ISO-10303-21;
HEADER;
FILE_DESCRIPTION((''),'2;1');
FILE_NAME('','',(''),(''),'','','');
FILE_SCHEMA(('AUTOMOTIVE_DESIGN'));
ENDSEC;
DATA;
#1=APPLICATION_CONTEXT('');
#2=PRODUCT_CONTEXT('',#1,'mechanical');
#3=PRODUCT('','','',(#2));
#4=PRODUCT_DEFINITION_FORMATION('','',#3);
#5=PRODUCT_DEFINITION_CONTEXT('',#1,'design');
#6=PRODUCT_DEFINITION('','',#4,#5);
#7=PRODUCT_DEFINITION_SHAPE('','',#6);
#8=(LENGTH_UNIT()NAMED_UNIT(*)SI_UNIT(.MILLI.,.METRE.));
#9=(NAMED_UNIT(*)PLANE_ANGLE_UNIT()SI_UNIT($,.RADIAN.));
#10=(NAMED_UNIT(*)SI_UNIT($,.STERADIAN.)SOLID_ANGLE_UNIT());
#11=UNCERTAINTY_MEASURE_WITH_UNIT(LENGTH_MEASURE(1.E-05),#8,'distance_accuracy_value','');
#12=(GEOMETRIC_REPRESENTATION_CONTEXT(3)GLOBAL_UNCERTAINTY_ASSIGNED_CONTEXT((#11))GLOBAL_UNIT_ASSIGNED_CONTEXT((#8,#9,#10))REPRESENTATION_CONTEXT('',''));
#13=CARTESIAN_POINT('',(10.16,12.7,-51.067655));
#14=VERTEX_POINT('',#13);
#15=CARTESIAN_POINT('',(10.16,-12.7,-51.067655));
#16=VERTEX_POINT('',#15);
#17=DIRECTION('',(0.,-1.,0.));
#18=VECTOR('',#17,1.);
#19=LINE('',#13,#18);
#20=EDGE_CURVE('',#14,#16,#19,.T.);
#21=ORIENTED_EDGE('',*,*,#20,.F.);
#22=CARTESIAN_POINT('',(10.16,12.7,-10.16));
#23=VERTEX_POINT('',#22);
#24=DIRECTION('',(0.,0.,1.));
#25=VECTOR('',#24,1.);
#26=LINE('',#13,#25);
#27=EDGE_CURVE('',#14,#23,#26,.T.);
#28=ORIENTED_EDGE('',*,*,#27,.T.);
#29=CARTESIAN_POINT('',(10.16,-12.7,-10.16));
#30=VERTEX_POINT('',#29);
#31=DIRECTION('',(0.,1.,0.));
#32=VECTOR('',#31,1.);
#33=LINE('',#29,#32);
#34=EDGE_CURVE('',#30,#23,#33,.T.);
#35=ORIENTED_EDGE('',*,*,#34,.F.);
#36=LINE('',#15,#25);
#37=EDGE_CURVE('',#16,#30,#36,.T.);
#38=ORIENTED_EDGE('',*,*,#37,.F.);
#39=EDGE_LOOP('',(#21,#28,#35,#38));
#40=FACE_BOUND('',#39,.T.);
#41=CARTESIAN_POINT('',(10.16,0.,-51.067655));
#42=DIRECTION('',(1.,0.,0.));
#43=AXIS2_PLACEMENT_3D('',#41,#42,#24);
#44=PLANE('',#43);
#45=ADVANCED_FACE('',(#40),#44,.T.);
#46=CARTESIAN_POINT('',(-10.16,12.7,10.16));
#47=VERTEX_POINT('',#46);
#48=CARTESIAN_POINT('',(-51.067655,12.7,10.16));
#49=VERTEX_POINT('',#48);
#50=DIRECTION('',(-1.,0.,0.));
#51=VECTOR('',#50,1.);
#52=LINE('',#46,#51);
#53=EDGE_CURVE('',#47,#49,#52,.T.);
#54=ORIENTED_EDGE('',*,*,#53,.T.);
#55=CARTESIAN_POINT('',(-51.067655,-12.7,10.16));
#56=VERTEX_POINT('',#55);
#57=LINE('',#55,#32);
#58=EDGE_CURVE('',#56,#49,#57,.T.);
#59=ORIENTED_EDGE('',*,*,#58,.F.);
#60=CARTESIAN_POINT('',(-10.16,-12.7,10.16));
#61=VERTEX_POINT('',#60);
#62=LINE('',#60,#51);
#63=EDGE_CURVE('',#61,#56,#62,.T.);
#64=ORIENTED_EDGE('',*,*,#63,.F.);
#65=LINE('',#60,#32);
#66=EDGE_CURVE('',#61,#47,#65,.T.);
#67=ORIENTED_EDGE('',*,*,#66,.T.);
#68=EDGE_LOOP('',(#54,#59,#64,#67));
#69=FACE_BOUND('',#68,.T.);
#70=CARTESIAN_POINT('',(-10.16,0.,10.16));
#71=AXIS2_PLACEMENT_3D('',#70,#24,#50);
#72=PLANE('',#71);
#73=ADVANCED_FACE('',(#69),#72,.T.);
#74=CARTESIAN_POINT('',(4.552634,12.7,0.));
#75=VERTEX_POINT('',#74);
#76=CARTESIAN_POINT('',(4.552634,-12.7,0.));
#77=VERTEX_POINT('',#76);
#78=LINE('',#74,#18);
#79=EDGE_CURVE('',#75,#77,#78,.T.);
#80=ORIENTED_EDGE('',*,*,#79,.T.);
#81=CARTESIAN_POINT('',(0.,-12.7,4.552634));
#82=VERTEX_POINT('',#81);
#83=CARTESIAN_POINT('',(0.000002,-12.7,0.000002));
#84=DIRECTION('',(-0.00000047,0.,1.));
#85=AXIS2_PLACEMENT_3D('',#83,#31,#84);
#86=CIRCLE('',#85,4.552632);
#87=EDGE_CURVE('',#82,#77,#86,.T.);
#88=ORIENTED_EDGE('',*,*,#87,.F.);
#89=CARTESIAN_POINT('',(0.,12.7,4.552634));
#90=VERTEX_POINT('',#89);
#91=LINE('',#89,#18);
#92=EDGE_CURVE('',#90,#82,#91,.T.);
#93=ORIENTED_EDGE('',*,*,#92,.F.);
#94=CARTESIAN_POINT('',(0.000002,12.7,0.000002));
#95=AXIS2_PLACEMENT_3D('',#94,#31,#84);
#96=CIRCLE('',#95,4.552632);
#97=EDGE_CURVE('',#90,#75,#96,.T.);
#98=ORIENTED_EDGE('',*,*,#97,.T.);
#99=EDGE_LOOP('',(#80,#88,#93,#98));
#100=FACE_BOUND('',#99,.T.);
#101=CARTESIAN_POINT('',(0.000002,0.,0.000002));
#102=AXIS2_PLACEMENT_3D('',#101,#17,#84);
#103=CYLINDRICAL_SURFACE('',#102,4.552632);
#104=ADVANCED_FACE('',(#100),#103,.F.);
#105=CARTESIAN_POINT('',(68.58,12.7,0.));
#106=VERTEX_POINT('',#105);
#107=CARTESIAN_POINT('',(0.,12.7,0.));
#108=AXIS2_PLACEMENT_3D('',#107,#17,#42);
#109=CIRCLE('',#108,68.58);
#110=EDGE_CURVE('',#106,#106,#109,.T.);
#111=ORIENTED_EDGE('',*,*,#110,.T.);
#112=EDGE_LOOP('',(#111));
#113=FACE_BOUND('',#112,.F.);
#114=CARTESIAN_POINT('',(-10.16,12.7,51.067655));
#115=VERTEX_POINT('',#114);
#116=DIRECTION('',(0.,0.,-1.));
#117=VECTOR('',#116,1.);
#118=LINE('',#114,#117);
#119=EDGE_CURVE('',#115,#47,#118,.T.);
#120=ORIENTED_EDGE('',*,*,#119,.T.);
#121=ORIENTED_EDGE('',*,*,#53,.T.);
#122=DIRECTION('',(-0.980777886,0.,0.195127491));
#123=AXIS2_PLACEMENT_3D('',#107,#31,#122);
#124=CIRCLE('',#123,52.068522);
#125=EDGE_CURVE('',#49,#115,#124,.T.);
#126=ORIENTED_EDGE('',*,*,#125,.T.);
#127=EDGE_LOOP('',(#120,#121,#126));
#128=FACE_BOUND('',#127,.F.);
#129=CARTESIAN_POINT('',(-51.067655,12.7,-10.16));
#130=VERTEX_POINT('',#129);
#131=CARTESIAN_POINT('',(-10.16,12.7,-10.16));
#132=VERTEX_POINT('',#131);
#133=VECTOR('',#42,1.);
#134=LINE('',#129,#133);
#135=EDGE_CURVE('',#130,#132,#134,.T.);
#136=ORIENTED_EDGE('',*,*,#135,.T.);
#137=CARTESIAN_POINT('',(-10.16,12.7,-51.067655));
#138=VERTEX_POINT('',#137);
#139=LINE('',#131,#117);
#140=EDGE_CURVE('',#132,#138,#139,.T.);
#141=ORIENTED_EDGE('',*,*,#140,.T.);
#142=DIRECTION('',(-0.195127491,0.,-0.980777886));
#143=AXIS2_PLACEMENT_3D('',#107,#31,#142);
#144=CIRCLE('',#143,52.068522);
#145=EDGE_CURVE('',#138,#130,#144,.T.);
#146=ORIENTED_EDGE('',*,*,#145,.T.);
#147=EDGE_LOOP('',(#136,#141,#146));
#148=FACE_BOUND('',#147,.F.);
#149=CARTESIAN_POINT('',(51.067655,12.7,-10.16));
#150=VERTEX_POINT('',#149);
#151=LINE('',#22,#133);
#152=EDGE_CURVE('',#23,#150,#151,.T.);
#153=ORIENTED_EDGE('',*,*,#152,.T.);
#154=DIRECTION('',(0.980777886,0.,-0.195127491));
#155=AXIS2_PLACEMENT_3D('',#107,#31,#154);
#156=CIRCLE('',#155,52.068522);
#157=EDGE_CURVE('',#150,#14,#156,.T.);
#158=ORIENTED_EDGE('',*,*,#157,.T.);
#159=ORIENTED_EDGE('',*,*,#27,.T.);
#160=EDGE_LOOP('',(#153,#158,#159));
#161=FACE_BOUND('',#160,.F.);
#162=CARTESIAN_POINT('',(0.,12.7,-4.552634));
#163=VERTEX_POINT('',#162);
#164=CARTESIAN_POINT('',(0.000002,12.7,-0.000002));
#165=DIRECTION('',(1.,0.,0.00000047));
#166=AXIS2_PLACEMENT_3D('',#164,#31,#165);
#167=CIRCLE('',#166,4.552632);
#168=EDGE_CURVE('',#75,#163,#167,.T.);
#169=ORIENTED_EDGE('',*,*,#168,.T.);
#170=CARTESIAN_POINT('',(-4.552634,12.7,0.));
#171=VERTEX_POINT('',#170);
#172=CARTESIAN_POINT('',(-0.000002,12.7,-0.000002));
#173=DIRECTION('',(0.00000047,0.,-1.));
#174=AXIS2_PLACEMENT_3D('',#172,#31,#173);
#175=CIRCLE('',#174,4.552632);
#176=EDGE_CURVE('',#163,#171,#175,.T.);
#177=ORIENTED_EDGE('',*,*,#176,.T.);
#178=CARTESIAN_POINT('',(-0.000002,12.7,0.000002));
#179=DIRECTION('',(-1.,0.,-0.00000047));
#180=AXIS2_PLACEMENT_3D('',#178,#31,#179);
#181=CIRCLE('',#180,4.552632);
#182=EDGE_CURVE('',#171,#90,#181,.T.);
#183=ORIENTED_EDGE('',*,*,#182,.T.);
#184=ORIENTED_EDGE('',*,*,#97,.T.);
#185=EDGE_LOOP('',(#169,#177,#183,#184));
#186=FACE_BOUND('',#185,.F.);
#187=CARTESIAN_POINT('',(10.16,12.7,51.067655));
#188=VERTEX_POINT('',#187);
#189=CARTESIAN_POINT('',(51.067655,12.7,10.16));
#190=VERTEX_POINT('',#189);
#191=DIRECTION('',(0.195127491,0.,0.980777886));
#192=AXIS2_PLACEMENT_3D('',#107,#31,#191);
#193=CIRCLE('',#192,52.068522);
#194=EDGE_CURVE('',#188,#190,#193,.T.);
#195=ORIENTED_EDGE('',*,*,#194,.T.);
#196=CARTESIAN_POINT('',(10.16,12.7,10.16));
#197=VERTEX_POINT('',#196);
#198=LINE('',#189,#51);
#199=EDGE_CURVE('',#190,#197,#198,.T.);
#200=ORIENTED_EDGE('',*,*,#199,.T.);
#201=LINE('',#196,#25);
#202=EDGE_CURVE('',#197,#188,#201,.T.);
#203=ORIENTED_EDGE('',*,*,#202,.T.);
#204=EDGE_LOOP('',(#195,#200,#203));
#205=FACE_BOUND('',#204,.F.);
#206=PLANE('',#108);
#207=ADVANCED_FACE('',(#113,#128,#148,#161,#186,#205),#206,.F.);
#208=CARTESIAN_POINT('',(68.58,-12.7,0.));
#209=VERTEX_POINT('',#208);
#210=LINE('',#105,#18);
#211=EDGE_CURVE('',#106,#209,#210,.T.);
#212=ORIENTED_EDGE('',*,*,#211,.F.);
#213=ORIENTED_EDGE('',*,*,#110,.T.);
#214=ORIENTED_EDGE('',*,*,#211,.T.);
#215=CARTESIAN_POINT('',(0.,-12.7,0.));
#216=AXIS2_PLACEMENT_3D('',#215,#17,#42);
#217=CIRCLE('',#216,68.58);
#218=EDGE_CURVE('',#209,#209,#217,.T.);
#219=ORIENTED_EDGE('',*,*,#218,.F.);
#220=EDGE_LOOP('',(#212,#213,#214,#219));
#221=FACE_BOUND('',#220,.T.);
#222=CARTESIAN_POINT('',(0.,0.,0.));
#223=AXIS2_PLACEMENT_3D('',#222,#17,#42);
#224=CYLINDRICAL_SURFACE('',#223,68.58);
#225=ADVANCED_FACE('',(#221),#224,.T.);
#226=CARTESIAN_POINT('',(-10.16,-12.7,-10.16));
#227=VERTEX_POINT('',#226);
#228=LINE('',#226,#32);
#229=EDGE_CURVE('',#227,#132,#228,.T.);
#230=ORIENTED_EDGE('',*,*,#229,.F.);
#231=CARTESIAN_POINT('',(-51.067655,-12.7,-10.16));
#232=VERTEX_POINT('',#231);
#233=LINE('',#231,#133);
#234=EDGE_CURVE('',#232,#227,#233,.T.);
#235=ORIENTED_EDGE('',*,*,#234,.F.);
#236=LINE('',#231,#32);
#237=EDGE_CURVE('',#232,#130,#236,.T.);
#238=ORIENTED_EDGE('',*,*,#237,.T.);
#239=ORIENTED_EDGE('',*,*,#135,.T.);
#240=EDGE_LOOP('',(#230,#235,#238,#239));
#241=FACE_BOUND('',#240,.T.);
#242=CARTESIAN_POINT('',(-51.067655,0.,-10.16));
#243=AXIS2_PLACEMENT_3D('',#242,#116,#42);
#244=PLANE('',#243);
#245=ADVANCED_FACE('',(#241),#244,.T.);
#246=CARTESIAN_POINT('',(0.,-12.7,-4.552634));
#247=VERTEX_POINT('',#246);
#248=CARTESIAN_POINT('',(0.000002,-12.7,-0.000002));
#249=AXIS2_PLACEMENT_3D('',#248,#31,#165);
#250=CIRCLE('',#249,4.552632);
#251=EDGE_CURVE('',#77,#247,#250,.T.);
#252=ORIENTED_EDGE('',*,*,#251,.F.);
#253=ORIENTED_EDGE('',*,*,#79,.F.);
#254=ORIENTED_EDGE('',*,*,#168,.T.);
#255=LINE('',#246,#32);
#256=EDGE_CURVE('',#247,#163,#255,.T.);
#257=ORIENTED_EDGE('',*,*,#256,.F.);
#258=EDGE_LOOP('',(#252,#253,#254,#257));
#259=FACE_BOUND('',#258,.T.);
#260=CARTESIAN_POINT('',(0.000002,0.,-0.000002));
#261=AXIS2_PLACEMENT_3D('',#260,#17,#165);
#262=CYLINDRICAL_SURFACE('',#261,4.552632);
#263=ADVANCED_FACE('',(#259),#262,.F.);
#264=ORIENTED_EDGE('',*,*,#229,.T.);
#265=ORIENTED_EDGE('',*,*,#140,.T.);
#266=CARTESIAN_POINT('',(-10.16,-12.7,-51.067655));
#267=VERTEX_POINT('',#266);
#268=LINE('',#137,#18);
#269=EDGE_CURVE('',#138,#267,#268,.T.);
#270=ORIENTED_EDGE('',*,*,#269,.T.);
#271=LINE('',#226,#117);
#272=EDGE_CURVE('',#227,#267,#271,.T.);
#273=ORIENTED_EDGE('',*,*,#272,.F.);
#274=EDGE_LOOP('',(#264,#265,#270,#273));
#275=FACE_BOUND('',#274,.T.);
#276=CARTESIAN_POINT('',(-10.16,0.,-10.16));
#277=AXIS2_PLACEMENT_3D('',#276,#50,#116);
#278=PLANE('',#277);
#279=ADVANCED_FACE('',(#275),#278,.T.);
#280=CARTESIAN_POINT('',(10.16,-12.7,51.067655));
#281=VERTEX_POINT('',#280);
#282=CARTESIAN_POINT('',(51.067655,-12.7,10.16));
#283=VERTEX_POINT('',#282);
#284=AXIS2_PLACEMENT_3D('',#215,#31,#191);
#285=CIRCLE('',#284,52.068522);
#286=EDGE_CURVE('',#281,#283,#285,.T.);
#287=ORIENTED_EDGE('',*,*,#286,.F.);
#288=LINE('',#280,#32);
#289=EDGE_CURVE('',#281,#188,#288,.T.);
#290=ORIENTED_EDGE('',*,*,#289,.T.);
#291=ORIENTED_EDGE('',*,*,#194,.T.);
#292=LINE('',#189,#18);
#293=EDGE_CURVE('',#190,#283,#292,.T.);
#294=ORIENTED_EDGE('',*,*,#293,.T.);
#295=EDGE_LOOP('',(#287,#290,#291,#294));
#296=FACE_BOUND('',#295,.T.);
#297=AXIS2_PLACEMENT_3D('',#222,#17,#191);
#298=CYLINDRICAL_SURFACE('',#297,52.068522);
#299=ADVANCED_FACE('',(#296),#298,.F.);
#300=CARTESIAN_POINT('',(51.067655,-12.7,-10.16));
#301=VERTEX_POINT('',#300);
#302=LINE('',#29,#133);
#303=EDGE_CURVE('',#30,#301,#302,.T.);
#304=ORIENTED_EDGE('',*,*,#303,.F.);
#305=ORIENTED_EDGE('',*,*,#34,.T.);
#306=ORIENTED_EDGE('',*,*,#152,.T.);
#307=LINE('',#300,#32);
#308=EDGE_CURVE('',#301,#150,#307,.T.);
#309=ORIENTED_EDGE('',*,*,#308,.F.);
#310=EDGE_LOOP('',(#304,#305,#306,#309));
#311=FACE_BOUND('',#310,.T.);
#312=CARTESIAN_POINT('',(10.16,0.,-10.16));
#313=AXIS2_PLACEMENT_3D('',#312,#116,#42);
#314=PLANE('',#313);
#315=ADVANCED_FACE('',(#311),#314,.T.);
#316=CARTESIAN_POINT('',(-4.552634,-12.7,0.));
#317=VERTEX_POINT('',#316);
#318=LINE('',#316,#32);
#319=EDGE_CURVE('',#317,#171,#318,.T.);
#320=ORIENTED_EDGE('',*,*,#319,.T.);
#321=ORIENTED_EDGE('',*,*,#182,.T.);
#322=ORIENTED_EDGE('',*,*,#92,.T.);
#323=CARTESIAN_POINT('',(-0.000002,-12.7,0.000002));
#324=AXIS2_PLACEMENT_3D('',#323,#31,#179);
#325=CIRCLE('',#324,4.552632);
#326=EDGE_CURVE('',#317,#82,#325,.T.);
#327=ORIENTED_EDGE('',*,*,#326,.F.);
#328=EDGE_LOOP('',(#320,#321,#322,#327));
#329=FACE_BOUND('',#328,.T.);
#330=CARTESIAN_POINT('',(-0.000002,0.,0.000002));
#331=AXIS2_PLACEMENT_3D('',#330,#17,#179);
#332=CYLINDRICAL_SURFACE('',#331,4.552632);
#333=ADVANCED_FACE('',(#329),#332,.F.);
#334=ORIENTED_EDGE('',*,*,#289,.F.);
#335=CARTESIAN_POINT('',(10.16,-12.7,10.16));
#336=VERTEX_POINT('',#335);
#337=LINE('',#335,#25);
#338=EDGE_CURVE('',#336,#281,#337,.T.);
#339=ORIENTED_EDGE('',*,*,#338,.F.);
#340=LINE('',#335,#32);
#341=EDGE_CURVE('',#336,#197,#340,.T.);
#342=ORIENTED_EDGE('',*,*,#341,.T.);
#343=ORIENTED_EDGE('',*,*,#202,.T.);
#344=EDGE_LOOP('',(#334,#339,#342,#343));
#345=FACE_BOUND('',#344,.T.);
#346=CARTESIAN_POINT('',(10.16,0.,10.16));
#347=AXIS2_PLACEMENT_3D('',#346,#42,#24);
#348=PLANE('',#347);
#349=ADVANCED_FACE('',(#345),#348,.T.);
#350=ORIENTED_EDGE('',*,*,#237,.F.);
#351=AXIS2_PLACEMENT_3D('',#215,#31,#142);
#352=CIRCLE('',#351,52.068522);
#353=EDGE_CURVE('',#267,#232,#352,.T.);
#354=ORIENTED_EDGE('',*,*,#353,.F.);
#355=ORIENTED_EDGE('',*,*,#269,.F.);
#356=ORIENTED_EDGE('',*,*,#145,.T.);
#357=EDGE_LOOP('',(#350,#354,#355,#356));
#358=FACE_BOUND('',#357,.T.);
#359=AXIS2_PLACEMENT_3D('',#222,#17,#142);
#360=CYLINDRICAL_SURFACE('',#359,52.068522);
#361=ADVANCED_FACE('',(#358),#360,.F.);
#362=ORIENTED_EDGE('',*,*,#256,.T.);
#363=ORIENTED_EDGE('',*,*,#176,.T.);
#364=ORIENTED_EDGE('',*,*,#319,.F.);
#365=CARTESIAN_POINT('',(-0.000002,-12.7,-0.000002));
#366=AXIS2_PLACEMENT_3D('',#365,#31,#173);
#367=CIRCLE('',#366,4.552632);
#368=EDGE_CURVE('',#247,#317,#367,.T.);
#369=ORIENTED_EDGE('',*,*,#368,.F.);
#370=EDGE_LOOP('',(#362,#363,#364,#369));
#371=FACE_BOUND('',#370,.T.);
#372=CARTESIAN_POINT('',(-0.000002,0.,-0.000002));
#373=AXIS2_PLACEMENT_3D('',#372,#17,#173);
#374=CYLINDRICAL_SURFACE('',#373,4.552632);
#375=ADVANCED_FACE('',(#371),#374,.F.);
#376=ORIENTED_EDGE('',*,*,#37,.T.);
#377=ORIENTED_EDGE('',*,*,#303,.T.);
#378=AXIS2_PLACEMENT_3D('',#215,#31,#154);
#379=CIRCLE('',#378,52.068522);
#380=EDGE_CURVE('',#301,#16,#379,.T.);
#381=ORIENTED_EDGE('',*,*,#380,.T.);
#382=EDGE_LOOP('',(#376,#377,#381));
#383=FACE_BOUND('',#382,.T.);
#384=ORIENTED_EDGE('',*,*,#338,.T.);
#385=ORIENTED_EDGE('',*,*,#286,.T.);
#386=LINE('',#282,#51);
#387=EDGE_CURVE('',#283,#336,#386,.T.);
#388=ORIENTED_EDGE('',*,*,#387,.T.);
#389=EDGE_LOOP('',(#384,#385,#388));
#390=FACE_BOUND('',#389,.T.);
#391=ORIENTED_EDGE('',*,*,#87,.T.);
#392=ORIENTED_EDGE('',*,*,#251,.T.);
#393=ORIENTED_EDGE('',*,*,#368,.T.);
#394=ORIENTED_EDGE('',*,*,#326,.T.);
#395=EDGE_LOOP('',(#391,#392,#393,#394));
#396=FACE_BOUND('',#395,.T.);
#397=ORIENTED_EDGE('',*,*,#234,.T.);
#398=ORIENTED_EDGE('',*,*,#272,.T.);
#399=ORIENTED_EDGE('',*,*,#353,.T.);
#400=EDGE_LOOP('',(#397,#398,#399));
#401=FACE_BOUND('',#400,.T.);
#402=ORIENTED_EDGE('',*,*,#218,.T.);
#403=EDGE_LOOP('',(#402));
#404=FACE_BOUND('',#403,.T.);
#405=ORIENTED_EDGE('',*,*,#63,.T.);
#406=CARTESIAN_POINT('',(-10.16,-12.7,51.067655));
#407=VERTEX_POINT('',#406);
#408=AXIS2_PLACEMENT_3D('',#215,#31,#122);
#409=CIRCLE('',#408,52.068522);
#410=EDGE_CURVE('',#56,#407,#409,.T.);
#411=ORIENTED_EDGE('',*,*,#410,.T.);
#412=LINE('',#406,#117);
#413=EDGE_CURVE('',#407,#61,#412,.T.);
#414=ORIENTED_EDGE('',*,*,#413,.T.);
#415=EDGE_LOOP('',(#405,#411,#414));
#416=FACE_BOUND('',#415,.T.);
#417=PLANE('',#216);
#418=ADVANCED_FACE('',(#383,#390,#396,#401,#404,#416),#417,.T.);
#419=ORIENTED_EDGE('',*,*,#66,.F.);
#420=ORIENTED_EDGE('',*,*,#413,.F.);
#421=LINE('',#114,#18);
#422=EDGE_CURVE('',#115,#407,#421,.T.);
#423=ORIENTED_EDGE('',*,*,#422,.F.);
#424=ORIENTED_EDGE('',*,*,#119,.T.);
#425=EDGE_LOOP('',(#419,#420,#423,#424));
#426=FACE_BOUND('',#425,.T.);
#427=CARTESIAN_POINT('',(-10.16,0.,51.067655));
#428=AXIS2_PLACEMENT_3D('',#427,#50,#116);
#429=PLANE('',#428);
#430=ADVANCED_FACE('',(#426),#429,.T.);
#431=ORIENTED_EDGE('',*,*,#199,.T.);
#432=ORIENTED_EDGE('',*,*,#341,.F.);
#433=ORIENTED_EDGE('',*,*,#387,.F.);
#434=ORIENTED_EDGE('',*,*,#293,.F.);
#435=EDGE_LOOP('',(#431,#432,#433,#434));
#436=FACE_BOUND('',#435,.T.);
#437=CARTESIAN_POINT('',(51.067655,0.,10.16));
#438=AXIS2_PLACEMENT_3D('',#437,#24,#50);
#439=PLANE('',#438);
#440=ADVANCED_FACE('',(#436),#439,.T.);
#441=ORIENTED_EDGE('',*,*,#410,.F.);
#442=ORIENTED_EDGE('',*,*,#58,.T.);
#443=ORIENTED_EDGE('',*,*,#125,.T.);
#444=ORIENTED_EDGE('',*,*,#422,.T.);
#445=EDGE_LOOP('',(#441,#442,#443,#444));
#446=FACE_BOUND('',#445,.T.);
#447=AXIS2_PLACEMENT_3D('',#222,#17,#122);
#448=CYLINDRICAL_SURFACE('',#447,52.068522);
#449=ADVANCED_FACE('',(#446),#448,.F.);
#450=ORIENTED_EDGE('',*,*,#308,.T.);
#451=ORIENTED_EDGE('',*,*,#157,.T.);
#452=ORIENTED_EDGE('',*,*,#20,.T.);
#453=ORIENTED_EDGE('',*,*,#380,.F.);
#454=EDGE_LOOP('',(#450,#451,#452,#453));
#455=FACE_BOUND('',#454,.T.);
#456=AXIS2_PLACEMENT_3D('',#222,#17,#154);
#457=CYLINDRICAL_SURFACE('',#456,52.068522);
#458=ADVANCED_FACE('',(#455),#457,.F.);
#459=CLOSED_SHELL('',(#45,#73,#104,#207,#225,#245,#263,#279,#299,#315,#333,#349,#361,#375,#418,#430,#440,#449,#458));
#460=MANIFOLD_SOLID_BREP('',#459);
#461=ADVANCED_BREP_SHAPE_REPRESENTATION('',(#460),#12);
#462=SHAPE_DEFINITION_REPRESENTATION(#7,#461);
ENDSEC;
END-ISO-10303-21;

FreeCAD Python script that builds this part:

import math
import FreeCAD as App
import Part
import Sketcher
from FreeCAD import Vector
Q = App.Units.Quantity

doc = App.newDocument("Part")
params = doc.addObject("Spreadsheet::Sheet", "Params")
for row, (alias, value) in enumerate([
    ("sketch1_diameter", "5.4 in"),
    ("pad1_length", "1 in"),
], start=1):
    params.set(f"A{row}", alias)
    params.set(f"B{row}", "=" + value)
    params.setAlias(f"B{row}", alias)

body = doc.addObject("PartDesign::Body", "Body")

sketch1 = doc.addObject("Sketcher::SketchObject", "Sketch")
body.addObject(sketch1)
sketch1.AttachmentSupport = (doc.XZ_Plane, [""])
sketch1.MapMode = "FlatFace"
sketch1.addGeometry([
    Part.Circle(Vector(0, 0, 0), Vector(0, 0, 1), 68.6),
    Part.LineSegment(Vector(-10.2, -10.2, 0), Vector(-10.2, -51.1, 0)),
    Part.ArcOfCircle(Part.Circle(Vector(0, 0, 0), Vector(0, 0, 1), 52.1), math.radians(-169), math.radians(-101)),
    Part.LineSegment(Vector(-51.1, -10.2, 0), Vector(-10.2, -10.2, 0)),
    Part.ArcOfCircle(Part.Circle(Vector(0, 0, 0), Vector(0, 0, 1), 52.1), math.radians(-79), math.radians(-11)),
    Part.LineSegment(Vector(10.2, -51.1, 0), Vector(10.2, -10.2, 0)),
    Part.LineSegment(Vector(10.2, -10.2, 0), Vector(51.1, -10.2, 0)),
    Part.ArcOfCircle(Part.Circle(Vector(0, 0, 0), Vector(0, 0, 1), 4.6), math.radians(90), math.radians(180)),
    Part.ArcOfCircle(Part.Circle(Vector(0, 0, 0), Vector(0, 0, 1), 4.6), math.radians(0), math.radians(90)),
    Part.ArcOfCircle(Part.Circle(Vector(0, 0, 0), Vector(0, 0, 1), 4.6), math.radians(-90), math.radians(0)),
    Part.ArcOfCircle(Part.Circle(Vector(0, 0, 0), Vector(0, 0, 1), 4.6), math.radians(180), math.radians(270)),
    Part.ArcOfCircle(Part.Circle(Vector(0, 0, 0), Vector(0, 0, 1), 52.1), math.radians(101), math.radians(169)),
    Part.LineSegment(Vector(-10.2, 51.1, 0), Vector(-10.2, 10.2, 0)),
    Part.LineSegment(Vector(-10.2, 10.2, 0), Vector(-51.1, 10.2, 0)),
    Part.ArcOfCircle(Part.Circle(Vector(0, 0, 0), Vector(0, 0, 1), 52.1), math.radians(11), math.radians(79)),
    Part.LineSegment(Vector(51.1, 10.2, 0), Vector(10.2, 10.2, 0)),
    Part.LineSegment(Vector(10.2, 10.2, 0), Vector(10.2, 51.1, 0)),
], False)
sketch1.addConstraint([
    Sketcher.Constraint("Coincident", 1, 2, 2, 2),
    Sketcher.Constraint("Coincident", 2, 1, 3, 1),
    Sketcher.Constraint("Coincident", 3, 2, 1, 1),
    Sketcher.Constraint("Coincident", 4, 1, 5, 1),
    Sketcher.Constraint("Coincident", 5, 2, 6, 1),
    Sketcher.Constraint("Coincident", 6, 2, 4, 2),
    Sketcher.Constraint("Tangent", 7, 1, 8, 2),
    Sketcher.Constraint("Tangent", 8, 1, 9, 2),
    Sketcher.Constraint("Tangent", 9, 1, 10, 2),
    Sketcher.Constraint("Tangent", 10, 1, 7, 2),
    Sketcher.Constraint("Coincident", 11, 1, 12, 1),
    Sketcher.Constraint("Coincident", 12, 2, 13, 1),
    Sketcher.Constraint("Coincident", 13, 2, 11, 2),
    Sketcher.Constraint("Coincident", 14, 1, 15, 1),
    Sketcher.Constraint("Coincident", 15, 2, 16, 1),
    Sketcher.Constraint("Coincident", 16, 2, 14, 2),
    Sketcher.Constraint("Vertical", 1),
    Sketcher.Constraint("Horizontal", 3),
    Sketcher.Constraint("Vertical", 5),
    Sketcher.Constraint("Horizontal", 6),
    Sketcher.Constraint("Vertical", 12),
    Sketcher.Constraint("Horizontal", 13),
    Sketcher.Constraint("Horizontal", 15),
    Sketcher.Constraint("Vertical", 16),
    Sketcher.Constraint("Coincident", 0, 3, -1, 1),
    Sketcher.Constraint("Coincident", 2, 3, -1, 1),
    Sketcher.Constraint("Coincident", 4, 3, -1, 1),
    Sketcher.Constraint("Coincident", 7, 3, -1, 1),
    Sketcher.Constraint("Coincident", 11, 3, -1, 1),
    Sketcher.Constraint("Coincident", 14, 3, -1, 1),
    Sketcher.Constraint("Equal", 2, 4),
    Sketcher.Constraint("Equal", 7, 8),
    Sketcher.Constraint("Equal", 4, 11),
    Sketcher.Constraint("Equal", 11, 14),
    Sketcher.Constraint("Symmetric", 5, 2, 12, 2, -1, 1),
    Sketcher.Constraint("Symmetric", 3, 2, 15, 2, -1, 1),
    Sketcher.Constraint("Symmetric", 3, 2, 5, 2, -2),
    Sketcher.Constraint("PointOnObject", 7, 1, -2),
    Sketcher.Constraint("PointOnObject", 8, 1, -1),
    Sketcher.Constraint("PointOnObject", 9, 1, -2),
    Sketcher.Constraint("PointOnObject", 10, 1, -1),
    Sketcher.Constraint("Equal", 15, 1),
    Sketcher.Constraint("Diameter", 0, Q("5.4 in")),
    Sketcher.Constraint("DistanceX", 1, 2, -1, 1, Q("0.4 in")),
    Sketcher.Constraint("Radius", 7, Q("4.552632 mm")),
    Sketcher.Constraint("Radius", 2, Q("52.068522 mm")),
])
sketch1.setExpression("Constraints[42]", "Params.sketch1_diameter")
pad1 = doc.addObject("PartDesign::Pad", "Pad")
body.addObject(pad1)
pad1.Profile = sketch1
pad1.setExpression("Length", "Params.pad1_length")
pad1.Midplane = True

doc.recompute()
